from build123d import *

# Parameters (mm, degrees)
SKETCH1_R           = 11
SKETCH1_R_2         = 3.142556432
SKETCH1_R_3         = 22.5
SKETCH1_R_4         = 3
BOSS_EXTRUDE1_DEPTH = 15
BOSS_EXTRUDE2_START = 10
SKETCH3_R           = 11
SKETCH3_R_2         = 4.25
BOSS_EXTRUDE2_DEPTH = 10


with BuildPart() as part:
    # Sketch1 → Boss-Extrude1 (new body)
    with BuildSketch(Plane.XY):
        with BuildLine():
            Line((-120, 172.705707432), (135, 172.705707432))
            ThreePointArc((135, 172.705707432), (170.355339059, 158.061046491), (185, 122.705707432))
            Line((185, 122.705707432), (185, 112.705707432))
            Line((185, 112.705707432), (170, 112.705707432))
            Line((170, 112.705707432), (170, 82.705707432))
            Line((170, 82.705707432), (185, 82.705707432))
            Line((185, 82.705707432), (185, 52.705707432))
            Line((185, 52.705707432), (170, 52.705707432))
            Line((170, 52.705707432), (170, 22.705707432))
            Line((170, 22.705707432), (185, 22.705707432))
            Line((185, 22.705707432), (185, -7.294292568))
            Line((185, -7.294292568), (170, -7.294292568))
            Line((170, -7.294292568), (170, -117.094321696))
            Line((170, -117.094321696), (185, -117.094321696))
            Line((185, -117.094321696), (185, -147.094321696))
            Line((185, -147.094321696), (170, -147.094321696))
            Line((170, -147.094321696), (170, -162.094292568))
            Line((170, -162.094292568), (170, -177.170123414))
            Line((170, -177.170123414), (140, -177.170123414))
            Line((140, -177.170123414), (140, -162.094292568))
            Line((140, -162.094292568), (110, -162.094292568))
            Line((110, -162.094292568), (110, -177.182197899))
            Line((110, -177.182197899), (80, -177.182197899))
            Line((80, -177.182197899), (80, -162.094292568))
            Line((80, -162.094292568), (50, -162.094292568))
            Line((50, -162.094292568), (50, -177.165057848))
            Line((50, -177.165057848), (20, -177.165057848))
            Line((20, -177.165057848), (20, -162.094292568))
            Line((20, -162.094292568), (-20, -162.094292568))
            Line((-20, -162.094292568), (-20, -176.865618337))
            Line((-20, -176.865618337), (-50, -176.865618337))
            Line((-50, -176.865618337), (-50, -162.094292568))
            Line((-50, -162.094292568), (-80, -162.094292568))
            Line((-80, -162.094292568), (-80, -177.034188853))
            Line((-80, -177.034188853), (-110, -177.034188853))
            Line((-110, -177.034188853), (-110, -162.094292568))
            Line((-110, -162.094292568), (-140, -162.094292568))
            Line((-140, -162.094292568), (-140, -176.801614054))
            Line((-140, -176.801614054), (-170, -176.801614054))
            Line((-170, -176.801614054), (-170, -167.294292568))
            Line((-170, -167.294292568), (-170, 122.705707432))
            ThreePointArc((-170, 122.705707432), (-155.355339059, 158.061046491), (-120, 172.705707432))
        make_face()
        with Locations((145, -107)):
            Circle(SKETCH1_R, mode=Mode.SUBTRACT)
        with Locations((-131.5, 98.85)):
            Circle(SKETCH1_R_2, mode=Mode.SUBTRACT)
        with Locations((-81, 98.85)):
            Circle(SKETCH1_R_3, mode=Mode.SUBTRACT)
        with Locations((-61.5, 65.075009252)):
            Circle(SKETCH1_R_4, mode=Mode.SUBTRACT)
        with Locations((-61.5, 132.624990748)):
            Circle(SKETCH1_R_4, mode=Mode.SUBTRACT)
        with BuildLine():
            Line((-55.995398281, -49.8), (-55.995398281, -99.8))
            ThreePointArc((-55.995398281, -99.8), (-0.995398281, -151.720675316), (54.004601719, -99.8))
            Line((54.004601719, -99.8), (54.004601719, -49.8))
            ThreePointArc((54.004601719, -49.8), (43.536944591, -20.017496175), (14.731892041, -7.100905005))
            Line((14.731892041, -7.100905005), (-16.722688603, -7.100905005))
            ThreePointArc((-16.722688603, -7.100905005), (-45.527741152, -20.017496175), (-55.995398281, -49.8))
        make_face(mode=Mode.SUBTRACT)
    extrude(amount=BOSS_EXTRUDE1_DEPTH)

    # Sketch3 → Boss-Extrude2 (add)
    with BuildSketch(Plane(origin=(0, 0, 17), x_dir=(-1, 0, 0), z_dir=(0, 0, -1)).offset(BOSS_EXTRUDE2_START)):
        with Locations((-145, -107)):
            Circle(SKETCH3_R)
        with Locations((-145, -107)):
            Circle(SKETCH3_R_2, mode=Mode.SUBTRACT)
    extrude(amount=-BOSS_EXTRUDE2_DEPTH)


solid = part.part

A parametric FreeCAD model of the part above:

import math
import FreeCAD as App
import Part
import Sketcher

V = App.Vector

doc = App.newDocument("Part")
body = doc.addObject("PartDesign::Body", "Body")

sketch1 = doc.addObject("Sketcher::SketchObject", "Sketch")
body.addObject(sketch1)
sketch1.AttachmentSupport = (doc.XY_Plane, [""])
sketch1.MapMode = "FlatFace"
sketch1.addGeometry([
    Part.LineSegment(V(135, 172.705707, 0), V(-120, 172.705707, 0)),
    Part.ArcOfCircle(Part.Circle(V(-120, 122.705707, 0), V(0, 0, 1), 50), math.radians(90), math.radians(180)),
    Part.LineSegment(V(-170, 122.705707, 0), V(-170, -176.801614, 0)),
    Part.LineSegment(V(-170, -176.801614, 0), V(-140, -176.801614, 0)),
    Part.LineSegment(V(-140, -176.801614, 0), V(-140, -162.094293, 0)),
    Part.LineSegment(V(-140, -162.094293, 0), V(-110, -162.094293, 0)),
    Part.LineSegment(V(-110, -162.094293, 0), V(-110, -177.034189, 0)),
    Part.LineSegment(V(-110, -177.034189, 0), V(-80, -177.034189, 0)),
    Part.LineSegment(V(-80, -177.034189, 0), V(-80, -162.094293, 0)),
    Part.LineSegment(V(-80, -162.094293, 0), V(-50, -162.094293, 0)),
    Part.LineSegment(V(-50, -162.094293, 0), V(-50, -176.865618, 0)),
    Part.LineSegment(V(-50, -176.865618, 0), V(-20, -176.865618, 0)),
    Part.LineSegment(V(-20, -176.865618, 0), V(-20, -162.094293, 0)),
    Part.LineSegment(V(-20, -162.094293, 0), V(20, -162.094293, 0)),
    Part.LineSegment(V(20, -162.094293, 0), V(20, -177.165058, 0)),
    Part.LineSegment(V(20, -177.165058, 0), V(50, -177.165058, 0)),
    Part.LineSegment(V(50, -177.165058, 0), V(50, -162.094293, 0)),
    Part.LineSegment(V(50, -162.094293, 0), V(80, -162.094293, 0)),
    Part.LineSegment(V(80, -162.094293, 0), V(80, -177.182198, 0)),
    Part.LineSegment(V(80, -177.182198, 0), V(110, -177.182198, 0)),
    Part.LineSegment(V(110, -177.182198, 0), V(110, -162.094293, 0)),
    Part.LineSegment(V(110, -162.094293, 0), V(140, -162.094293, 0)),
    Part.LineSegment(V(140, -162.094293, 0), V(140, -177.170123, 0)),
    Part.LineSegment(V(140, -177.170123, 0), V(170, -177.170123, 0)),
    Part.LineSegment(V(170, -177.170123, 0), V(170, -147.094322, 0)),
    Part.LineSegment(V(170, -147.094322, 0), V(185, -147.094322, 0)),
    Part.LineSegment(V(185, -147.094322, 0), V(185, -117.094322, 0)),
    Part.LineSegment(V(185, -117.094322, 0), V(170, -117.094322, 0)),
    Part.LineSegment(V(170, -117.094322, 0), V(170, -7.294293, 0)),
    Part.LineSegment(V(170, -7.294293, 0), V(185, -7.294293, 0)),
    Part.LineSegment(V(185, -7.294293, 0), V(185, 22.705707, 0)),
    Part.LineSegment(V(185, 22.705707, 0), V(170, 22.705707, 0)),
    Part.LineSegment(V(170, 22.705707, 0), V(170, 52.705707, 0)),
    Part.LineSegment(V(170, 52.705707, 0), V(185, 52.705707, 0)),
    Part.LineSegment(V(185, 52.705707, 0), V(185, 82.705707, 0)),
    Part.LineSegment(V(185, 82.705707, 0), V(170, 82.705707, 0)),
    Part.LineSegment(V(170, 82.705707, 0), V(170, 112.705707, 0)),
    Part.LineSegment(V(170, 112.705707, 0), V(185, 112.705707, 0)),
    Part.LineSegment(V(185, 112.705707, 0), V(185, 122.705707, 0)),
    Part.ArcOfCircle(Part.Circle(V(135, 122.705707, 0), V(0, 0, 1), 50), math.radians(0), math.radians(90)),
    Part.Circle(V(145, -107, 0), V(0, 0, 1), 11),
    Part.ArcOfCircle(Part.Circle(V(-16.086908, -47.095852, 0), V(0, 0, 1), 40), math.radians(90.910727), math.radians(183.876363)),
    Part.LineSegment(V(-16.722689, -7.100905, 0), V(14.731892, -7.100905, 0)),
    Part.ArcOfCircle(Part.Circle(V(14.096112, -47.095852, 0), V(0, 0, 1), 40), math.radians(-3.876363), math.radians(89.089273)),
    Part.LineSegment(V(54.004602, -49.8, 0), V(54.004602, -99.8, 0)),
    Part.ArcOfCircle(Part.Circle(V(-0.995398, -96.629361, 0), V(0, 0, 1), 55.091315), math.radians(-176.700665), math.radians(-3.299335)),
    Part.LineSegment(V(-55.995398, -99.8, 0), V(-55.995398, -49.8, 0)),
    Part.Circle(V(-61.5, 65.075009, 0), V(0, 0, 1), 3),
    Part.Circle(V(-61.5, 132.624991, 0), V(0, 0, 1), 3),
    Part.Circle(V(-81, 98.85, 0), V(0, 0, 1), 22.5),
    Part.Circle(V(-131.5, 98.85, 0), V(0, 0, 1), 3.142556),
], False)
sketch1.addConstraint([
    Sketcher.Constraint("Tangent", 0, 2, 1, 1),
    Sketcher.Constraint("Tangent", 1, 2, 2, 1),
    Sketcher.Constraint("Coincident", 2, 2, 3, 1),
    Sketcher.Constraint("Coincident", 3, 2, 4, 1),
    Sketcher.Constraint("Coincident", 4, 2, 5, 1),
    Sketcher.Constraint("Coincident", 5, 2, 6, 1),
    Sketcher.Constraint("Coincident", 6, 2, 7, 1),
    Sketcher.Constraint("Coincident", 7, 2, 8, 1),
    Sketcher.Constraint("Coincident", 8, 2, 9, 1),
    Sketcher.Constraint("Coincident", 9, 2, 10, 1),
    Sketcher.Constraint("Coincident", 10, 2, 11, 1),
    Sketcher.Constraint("Coincident", 11, 2, 12, 1),
    Sketcher.Constraint("Coincident", 12, 2, 13, 1),
    Sketcher.Constraint("Coincident", 13, 2, 14, 1),
    Sketcher.Constraint("Coincident", 14, 2, 15, 1),
    Sketcher.Constraint("Coincident", 15, 2, 16, 1),
    Sketcher.Constraint("Coincident", 16, 2, 17, 1),
    Sketcher.Constraint("Coincident", 17, 2, 18, 1),
    Sketcher.Constraint("Coincident", 18, 2, 19, 1),
    Sketcher.Constraint("Coincident", 19, 2, 20, 1),
    Sketcher.Constraint("Coincident", 20, 2, 21, 1),
    Sketcher.Constraint("Coincident", 21, 2, 22, 1),
    Sketcher.Constraint("Coincident", 22, 2, 23, 1),
    Sketcher.Constraint("Coincident", 23, 2, 24, 1),
    Sketcher.Constraint("Coincident", 24, 2, 25, 1),
    Sketcher.Constraint("Coincident", 25, 2, 26, 1),
    Sketcher.Constraint("Coincident", 26, 2, 27, 1),
    Sketcher.Constraint("Coincident", 27, 2, 28, 1),
    Sketcher.Constraint("Coincident", 28, 2, 29, 1),
    Sketcher.Constraint("Coincident", 29, 2, 30, 1),
    Sketcher.Constraint("Coincident", 30, 2, 31, 1),
    Sketcher.Constraint("Coincident", 31, 2, 32, 1),
    Sketcher.Constraint("Coincident", 32, 2, 33, 1),
    Sketcher.Constraint("Coincident", 33, 2, 34, 1),
    Sketcher.Constraint("Coincident", 34, 2, 35, 1),
    Sketcher.Constraint("Coincident", 35, 2, 36, 1),
    Sketcher.Constraint("Coincident", 36, 2, 37, 1),
    Sketcher.Constraint("Coincident", 37, 2, 38, 1),
    Sketcher.Constraint("Tangent", 38, 2, 39, 1),
    Sketcher.Constraint("Tangent", 39, 2, 0, 1),
    Sketcher.Constraint("Coincident", 41, 1, 42, 1),
    Sketcher.Constraint("Coincident", 42, 2, 43, 2),
    Sketcher.Constraint("Coincident", 43, 1, 44, 1),
    Sketcher.Constraint("Coincident", 44, 2, 45, 2),
    Sketcher.Constraint("Coincident", 45, 1, 46, 1),
    Sketcher.Constraint("Coincident", 46, 2, 41, 2),
    Sketcher.Constraint("Horizontal", 0),
    Sketcher.Constraint("Vertical", 2),
    Sketcher.Constraint("Horizontal", 3),
    Sketcher.Constraint("Vertical", 4),
    Sketcher.Constraint("Horizontal", 5),
    Sketcher.Constraint("Vertical", 6),
    Sketcher.Constraint("Horizontal", 7),
    Sketcher.Constraint("Vertical", 8),
    Sketcher.Constraint("Horizontal", 9),
    Sketcher.Constraint("Vertical", 10),
    Sketcher.Constraint("Horizontal", 11),
    Sketcher.Constraint("Vertical", 12),
    Sketcher.Constraint("Horizontal", 13),
    Sketcher.Constraint("Vertical", 14),
    Sketcher.Constraint("Horizontal", 15),
    Sketcher.Constraint("Vertical", 16),
    Sketcher.Constraint("Horizontal", 17),
    Sketcher.Constraint("Vertical", 18),
    Sketcher.Constraint("Horizontal", 19),
    Sketcher.Constraint("Vertical", 20),
    Sketcher.Constraint("Horizontal", 21),
    Sketcher.Constraint("Vertical", 22),
    Sketcher.Constraint("Horizontal", 23),
    Sketcher.Constraint("Vertical", 24),
    Sketcher.Constraint("Horizontal", 25),
    Sketcher.Constraint("Vertical", 26),
    Sketcher.Constraint("Horizontal", 27),
    Sketcher.Constraint("Vertical", 28),
    Sketcher.Constraint("Horizontal", 29),
    Sketcher.Constraint("Vertical", 30),
    Sketcher.Constraint("Horizontal", 31),
    Sketcher.Constraint("Vertical", 32),
    Sketcher.Constraint("Horizontal", 33),
    Sketcher.Constraint("Vertical", 34),
    Sketcher.Constraint("Horizontal", 35),
    Sketcher.Constraint("Vertical", 36),
    Sketcher.Constraint("Horizontal", 37),
    Sketcher.Constraint("Vertical", 38),
    Sketcher.Constraint("Horizontal", 42),
    Sketcher.Constraint("Vertical", 44),
    Sketcher.Constraint("Vertical", 46),
    Sketcher.Constraint("Equal", 1, 39),
    Sketcher.Constraint("Equal", 41, 43),
    Sketcher.Constraint("Equal", 47, 48),
    Sketcher.Constraint("Symmetric", 9, 2, 16, 2, -2),
    Sketcher.Constraint("Symmetric", 5, 2, 20, 2, -2),
    Sketcher.Constraint("Horizontal", 41, 3, 43, 3),
    Sketcher.Constraint("Horizontal", 49, 3, 50, 3),
    Sketcher.Constraint("Horizontal", 5, 2, 8, 2),
    Sketcher.Constraint("Horizontal", 9, 2, 12, 2),
    Sketcher.Constraint("Horizontal", 44, 2, 45, 1),
    Sketcher.Constraint("Horizontal", 43, 1, 46, 2),
    Sketcher.Constraint("Vertical", 47, 3, 48, 3),
    Sketcher.Constraint("Vertical", 24, 2, 27, 2),
    Sketcher.Constraint("Vertical", 26, 2, 29, 2),
    Sketcher.Constraint("Vertical", 28, 2, 31, 2),
    Sketcher.Constraint("Vertical", 30, 2, 33, 2),
    Sketcher.Constraint("Vertical", 32, 2, 35, 2),
    Sketcher.Constraint("Vertical", 34, 2, 37, 2),
    Sketcher.Constraint("Equal", 3, 5),
    Sketcher.Constraint("Equal", 5, 7),
    Sketcher.Constraint("Equal", 7, 9),
    Sketcher.Constraint("Equal", 9, 11),
    Sketcher.Constraint("Equal", 11, 15),
    Sketcher.Constraint("Equal", 15, 17),
    Sketcher.Constraint("Equal", 19, 21),
    Sketcher.Constraint("Equal", 21, 23),
    Sketcher.Constraint("Equal", 23, 26),
    Sketcher.Constraint("Equal", 26, 30),
    Sketcher.Constraint("Equal", 30, 32),
    Sketcher.Constraint("Equal", 32, 34),
    Sketcher.Constraint("Equal", 34, 36),
    Sketcher.Constraint("Diameter", 40, 22.0),
    Sketcher.Constraint("Diameter", 47, 6.0),
    Sketcher.Constraint("Diameter", 49, 45.0),
    Sketcher.Constraint("Radius", 1, 50.0),
    Sketcher.Constraint("Radius", 41, 40.0),
    Sketcher.Constraint("DistanceX", 0, 2, 0, 1, 255.0),
    Sketcher.Constraint("DistanceX", 3, 1, 3, 2, 30.0),
    Sketcher.Constraint("DistanceX", 13, 1, 13, 2, 40.0),
    Sketcher.Constraint("DistanceY", 38, 1, 38, 2, 10.0),
    Sketcher.Constraint("DistanceY", 44, 2, 44, 1, 50.0),
    Sketcher.Constraint("DistanceX", -1, 1, 40, 3, 145.0),
    Sketcher.Constraint("DistanceY", 40, 3, -1, 1, 107.0),
    Sketcher.Constraint("DistanceX", 49, 3, -1, 1, 81.0),
    Sketcher.Constraint("DistanceX", 50, 3, 47, 3, 70.0),
    Sketcher.Constraint("DistanceX", 45, 3, 43, 1, 55.0),
    Sketcher.Constraint("DistanceX", 47, 3, -1, 1, 61.5),
    Sketcher.Constraint("DistanceY", 43, 1, -1, 1, 49.8),
    Sketcher.Constraint("DistanceY", -1, 1, 49, 3, 98.85),
    Sketcher.Constraint("Diameter", 50, 6.285113),
    Sketcher.Constraint("DistanceY", 24, 1, 24, 2, 30.075802),
    Sketcher.Constraint("Radius", 45, 55.091315),
    Sketcher.Constraint("DistanceX", 42, 1, 42, 2, 31.454581),
    Sketcher.Constraint("DistanceY", 2, 2, 2, 1, 299.507321),
    Sketcher.Constraint("DistanceY", 4, 1, 4, 2, 14.707321),
    Sketcher.Constraint("DistanceY", 22, 2, 22, 1, 15.075831),
    Sketcher.Constraint("DistanceX", 45, 3, -1, 1, 0.995398),
    Sketcher.Constraint("DistanceY", 47, 3, 1, 3, 57.630698),
    Sketcher.Constraint("DistanceX", 41, 3, 42, 2, 30.8188),
    Sketcher.Constraint("DistanceY", 6, 2, 6, 1, 14.939896),
    Sketcher.Constraint("DistanceY", 10, 2, 10, 1, 14.771326),
    Sketcher.Constraint("DistanceY", 14, 2, 14, 1, 15.070765),
    Sketcher.Constraint("DistanceY", 18, 2, 18, 1, 15.087905),
    Sketcher.Constraint("DistanceY", -1, 1, 47, 3, 65.075009),
    Sketcher.Constraint("DistanceY", -1, 1, 48, 3, 132.624991),
])
pad1 = doc.addObject("PartDesign::Pad", "Pad")
body.addObject(pad1)
pad1.Profile = sketch1
pad1.Length = 15

sketch2 = doc.addObject("Sketcher::SketchObject", "Sketch001")
body.addObject(sketch2)
sketch2.AttachmentSupport = (doc.XY_Plane, [""])
sketch2.MapMode = "FlatFace"
sketch2.AttachmentOffset = App.Placement(V(0, 0, 7), App.Rotation())
sketch2.addGeometry([
    Part.Circle(V(145, -107, 0), V(0, 0, 1), 11),
    Part.Circle(V(145, -107, 0), V(0, 0, 1), 4.25),
], False)
sketch2.addConstraint([
    Sketcher.Constraint("Coincident", 1, 3, 0, 3),
    Sketcher.Constraint("Diameter", 0, 22.0),
    Sketcher.Constraint("Diameter", 1, 8.5),
    Sketcher.Constraint("DistanceX", -1, 1, 0, 3, 145.0),
    Sketcher.Constraint("DistanceY", 0, 3, -1, 1, 107.0),
])
pad2 = doc.addObject("PartDesign::Pad", "Pad001")
body.addObject(pad2)
pad2.Profile = sketch2
pad2.Length = 10

doc.recompute()
